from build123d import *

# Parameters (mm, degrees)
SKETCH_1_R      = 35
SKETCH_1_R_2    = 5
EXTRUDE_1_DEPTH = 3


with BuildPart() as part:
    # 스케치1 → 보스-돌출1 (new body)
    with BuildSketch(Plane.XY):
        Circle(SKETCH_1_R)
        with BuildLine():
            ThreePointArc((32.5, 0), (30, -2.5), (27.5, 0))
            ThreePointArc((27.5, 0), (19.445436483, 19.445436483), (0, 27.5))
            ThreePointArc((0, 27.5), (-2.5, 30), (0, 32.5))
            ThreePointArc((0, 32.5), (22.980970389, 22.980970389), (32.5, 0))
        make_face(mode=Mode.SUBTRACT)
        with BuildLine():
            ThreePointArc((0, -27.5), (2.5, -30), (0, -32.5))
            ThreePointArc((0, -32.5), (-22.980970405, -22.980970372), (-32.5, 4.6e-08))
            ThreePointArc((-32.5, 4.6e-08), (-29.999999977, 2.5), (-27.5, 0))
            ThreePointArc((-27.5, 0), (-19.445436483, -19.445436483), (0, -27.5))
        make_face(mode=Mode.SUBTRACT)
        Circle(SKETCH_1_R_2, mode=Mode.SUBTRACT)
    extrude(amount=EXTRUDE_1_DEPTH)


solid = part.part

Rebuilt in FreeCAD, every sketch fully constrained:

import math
import FreeCAD as App
import Part
import Sketcher
from FreeCAD import Vector
Q = App.Units.Quantity

doc = App.newDocument("Part")
body = doc.addObject("PartDesign::Body", "Body")

sketch1 = body.newObject("Sketcher::SketchObject", "Sketch")
sketch1.AttachmentSupport = (doc.getObject("XY_Plane"), [""])
sketch1.MapMode = "FlatFace"
sketch1.addGeometry([
    Part.Circle(Vector(0, 0, 0), Vector(0, 0, 1), 35),
    Part.ArcOfCircle(Part.Circle(Vector(0, 0, 0), Vector(0, 0, 1), 27.5), math.radians(180), math.radians(270)),
    Part.ArcOfCircle(Part.Circle(Vector(0, -30, 0), Vector(0, 0, 1), 2.5), math.radians(-90), math.radians(90)),
    Part.ArcOfCircle(Part.Circle(Vector(0, 0, 0), Vector(0, 0, 1), 32.5), math.radians(180), math.radians(270)),
    Part.ArcOfCircle(Part.Circle(Vector(-30, 0, 0), Vector(0, 0, 1), 2.5), math.radians(0), math.radians(180)),
    Part.Circle(Vector(0, 0, 0), Vector(0, 0, 1), 5),
    Part.ArcOfCircle(Part.Circle(Vector(0, 0, 0), Vector(0, 0, 1), 32.5), math.radians(0), math.radians(90)),
    Part.ArcOfCircle(Part.Circle(Vector(30, 0, 0), Vector(0, 0, 1), 2.5), math.radians(180), math.radians(360)),
    Part.ArcOfCircle(Part.Circle(Vector(0, 0, 0), Vector(0, 0, 1), 27.5), math.radians(0), math.radians(90)),
    Part.ArcOfCircle(Part.Circle(Vector(0, 30, 0), Vector(0, 0, 1), 2.5), math.radians(90), math.radians(270)),
], False)
sketch1.addConstraint([
    Sketcher.Constraint("Tangent", 1, 2, 2, 2),
    Sketcher.Constraint("Tangent", 2, 1, 3, 2),
    Sketcher.Constraint("Tangent", 3, 1, 4, 2),
    Sketcher.Constraint("Tangent", 4, 1, 1, 1),
    Sketcher.Constraint("Tangent", 6, 1, 7, 2),
    Sketcher.Constraint("Tangent", 7, 1, 8, 1),
    Sketcher.Constraint("Tangent", 8, 2, 9, 2),
    Sketcher.Constraint("Tangent", 9, 1, 6, 2),
    Sketcher.Constraint("Coincident", 0, 3, -1, 1),
    Sketcher.Constraint("Coincident", 1, 3, -1, 1),
    Sketcher.Constraint("Coincident", 3, 3, -1, 1),
    Sketcher.Constraint("Coincident", 5, 3, -1, 1),
    Sketcher.Constraint("Coincident", 6, 3, -1, 1),
    Sketcher.Constraint("Coincident", 8, 3, -1, 1),
    Sketcher.Constraint("Equal", 3, 6),
    Sketcher.Constraint("Equal", 4, 7),
    Sketcher.Constraint("PointOnObject", 2, 3, -2),
    Sketcher.Constraint("PointOnObject", 4, 3, -1),
    Sketcher.Constraint("PointOnObject", 7, 3, -1),
    Sketcher.Constraint("PointOnObject", 9, 3, -2),
    Sketcher.Constraint("Diameter", 0, Q("70 mm")),
    Sketcher.Constraint("Diameter", 5, Q("10 mm")),
    Sketcher.Constraint("Radius", 1, Q("27.5 mm")),
    Sketcher.Constraint("Radius", 2, Q("2.5 mm")),
])
pad1 = body.newObject("PartDesign::Pad", "Pad")
pad1.Profile = sketch1
pad1.Length = 3

doc.recompute()
